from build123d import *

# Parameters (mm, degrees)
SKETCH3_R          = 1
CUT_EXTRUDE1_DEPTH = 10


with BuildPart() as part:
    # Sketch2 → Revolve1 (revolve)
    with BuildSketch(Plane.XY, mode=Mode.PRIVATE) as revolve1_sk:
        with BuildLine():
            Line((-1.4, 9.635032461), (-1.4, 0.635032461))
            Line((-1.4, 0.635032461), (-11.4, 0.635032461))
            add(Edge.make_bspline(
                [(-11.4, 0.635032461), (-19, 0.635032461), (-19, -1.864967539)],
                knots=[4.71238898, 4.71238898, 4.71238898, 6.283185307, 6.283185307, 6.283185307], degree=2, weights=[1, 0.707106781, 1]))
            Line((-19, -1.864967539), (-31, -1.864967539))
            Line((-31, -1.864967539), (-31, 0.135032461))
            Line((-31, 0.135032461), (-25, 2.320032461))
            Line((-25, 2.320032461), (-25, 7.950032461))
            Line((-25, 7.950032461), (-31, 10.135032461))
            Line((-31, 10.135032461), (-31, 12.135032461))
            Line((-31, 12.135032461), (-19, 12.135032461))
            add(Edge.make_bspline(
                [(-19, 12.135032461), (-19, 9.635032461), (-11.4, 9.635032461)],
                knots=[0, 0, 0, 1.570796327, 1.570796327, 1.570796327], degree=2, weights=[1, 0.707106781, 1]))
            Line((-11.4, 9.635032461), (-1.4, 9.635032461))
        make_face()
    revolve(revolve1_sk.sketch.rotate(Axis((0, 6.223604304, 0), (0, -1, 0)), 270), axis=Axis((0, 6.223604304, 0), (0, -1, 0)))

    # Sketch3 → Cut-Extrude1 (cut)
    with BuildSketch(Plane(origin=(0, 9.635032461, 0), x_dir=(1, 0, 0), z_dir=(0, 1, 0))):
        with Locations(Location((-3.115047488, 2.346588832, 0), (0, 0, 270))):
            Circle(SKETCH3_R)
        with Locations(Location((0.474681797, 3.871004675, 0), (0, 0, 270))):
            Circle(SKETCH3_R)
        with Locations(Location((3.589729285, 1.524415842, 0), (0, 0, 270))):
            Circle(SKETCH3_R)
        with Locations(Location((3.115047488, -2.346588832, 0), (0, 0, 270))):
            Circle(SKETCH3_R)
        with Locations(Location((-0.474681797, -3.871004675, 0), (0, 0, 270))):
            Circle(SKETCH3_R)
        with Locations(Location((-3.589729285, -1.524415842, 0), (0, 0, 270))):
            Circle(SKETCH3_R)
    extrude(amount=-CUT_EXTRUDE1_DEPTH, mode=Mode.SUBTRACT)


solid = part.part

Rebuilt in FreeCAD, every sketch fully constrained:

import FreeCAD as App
import Part
import Sketcher
Q = App.Units.Quantity

doc = App.newDocument("Part")
params = doc.addObject("Spreadsheet::Sheet", "Params")
for row, (alias, value) in enumerate([
    ("sketch1_width", "10 mm"),
    ("sketch1_width2", "12 mm"),
    ("sketch1_height", "2 mm"),
    ("sketch1_height2", "5.63 mm"),
    ("revolution_angle", "360 deg"),
    ("sketch2_diameter", "2 mm"),
    ("pocket1_length", "10 mm"),
], start=1):
    params.set(f"A{row}", alias)
    params.set(f"B{row}", "=" + value)
    params.setAlias(f"B{row}", alias)

body = doc.addObject("PartDesign::Body", "Body")

# Sketch on XY plane
sketch1 = doc.addObject("Sketcher::SketchObject", "Sketch")
body.addObject(sketch1)
sketch1.AttachmentSupport = (doc.XY_Plane, [""])
sketch1.MapMode = "FlatFace"
sketch1.addGeometry([
    Part.LineSegment(App.Vector(-1.4, 0.635032, 0), App.Vector(-1.4, 9.635032, 0)),  # 0
    Part.LineSegment(App.Vector(-1.4, 9.635032, 0), App.Vector(-11.4, 9.635032, 0)),  # 1
    Part.BSplineCurve([App.Vector(-19, 12.135032, 0), App.Vector(-19, 9.635032, 0), App.Vector(-11.4, 9.635032, 0)], [3, 3], [0, 1.570796327], False, 2, [1, 0.707106781, 1], False),  # 2
    Part.LineSegment(App.Vector(-19, 12.135032, 0), App.Vector(-31, 12.135032, 0)),  # 3
    Part.LineSegment(App.Vector(-31, 12.135032, 0), App.Vector(-31, 10.135032, 0)),  # 4
    Part.LineSegment(App.Vector(-31, 10.135032, 0), App.Vector(-25, 7.950032, 0)),  # 5
    Part.LineSegment(App.Vector(-25, 7.950032, 0), App.Vector(-25, 2.320032, 0)),  # 6
    Part.LineSegment(App.Vector(-25, 2.320032, 0), App.Vector(-31, 0.135032, 0)),  # 7
    Part.LineSegment(App.Vector(-31, 0.135032, 0), App.Vector(-31, -1.864968, 0)),  # 8
    Part.LineSegment(App.Vector(-31, -1.864968, 0), App.Vector(-19, -1.864968, 0)),  # 9
    Part.BSplineCurve([App.Vector(-11.4, 0.635032, 0), App.Vector(-19, 0.635032, 0), App.Vector(-19, -1.864968, 0)], [3, 3], [4.71238898, 6.283185307], False, 2, [1, 0.707106781, 1], False),  # 10
    Part.LineSegment(App.Vector(-11.4, 0.635032, 0), App.Vector(-1.4, 0.635032, 0)),  # 11
], False)
sketch1.addConstraint([
    Sketcher.Constraint("Block", 2),
    Sketcher.Constraint("Block", 10),
    Sketcher.Constraint("Coincident", 0, 2, 1, 1),
    Sketcher.Constraint("Coincident", 1, 2, 2, 2),
    Sketcher.Constraint("Coincident", 2, 1, 3, 1),
    Sketcher.Constraint("Coincident", 3, 2, 4, 1),
    Sketcher.Constraint("Coincident", 4, 2, 5, 1),
    Sketcher.Constraint("Coincident", 5, 2, 6, 1),
    Sketcher.Constraint("Coincident", 6, 2, 7, 1),
    Sketcher.Constraint("Coincident", 7, 2, 8, 1),
    Sketcher.Constraint("Coincident", 8, 2, 9, 1),
    Sketcher.Constraint("Coincident", 9, 2, 10, 2),
    Sketcher.Constraint("Coincident", 10, 1, 11, 1),
    Sketcher.Constraint("Coincident", 11, 2, 0, 1),
    Sketcher.Constraint("Vertical", 0),
    Sketcher.Constraint("Horizontal", 1),
    Sketcher.Constraint("Horizontal", 3),
    Sketcher.Constraint("Vertical", 4),
    Sketcher.Constraint("Vertical", 6),
    Sketcher.Constraint("Vertical", 8),
    Sketcher.Constraint("Horizontal", 9),
    Sketcher.Constraint("Horizontal", 11),
    Sketcher.Constraint("Vertical", 4, 2, 7, 2),
    Sketcher.Constraint("Equal", 4, 8),
    Sketcher.Constraint("Equal", 5, 7),
    Sketcher.Constraint("DistanceX", 1, 2, 1, 1, Q("10 mm")),
    Sketcher.Constraint("DistanceX", 3, 2, 3, 1, Q("12 mm")),
    Sketcher.Constraint("DistanceY", 4, 2, 4, 1, Q("2 mm")),
    Sketcher.Constraint("DistanceX", 5, 2, -1, 1, Q("25 mm")),
    Sketcher.Constraint("DistanceY", 6, 2, 6, 1, Q("5.63 mm")),
])
sketch1.setExpression("Constraints[25]", "Params.sketch1_width")
sketch1.setExpression("Constraints[26]", "Params.sketch1_width2")
sketch1.setExpression("Constraints[27]", "Params.sketch1_height")
sketch1.setExpression("Constraints[29]", "Params.sketch1_height2")
revolution = doc.addObject("PartDesign::Revolution", "Revolution")
body.addObject(revolution)
revolution.Profile = sketch1
revolution.ReferenceAxis = (sketch1, ["V_Axis"])
revolution.setExpression("Angle", "Params.revolution_angle")

# Sketch on XZ plane
sketch2 = doc.addObject("Sketcher::SketchObject", "Sketch001")
body.addObject(sketch2)
sketch2.AttachmentSupport = (doc.XZ_Plane, [""])
sketch2.MapMode = "FlatFace"
sketch2.AttachmentOffset = App.Placement(App.Vector(0, 0, -9.635032), App.Rotation())
sketch2.addGeometry([
    Part.Circle(App.Vector(-3.115047, -2.346589, 0), App.Vector(0, 0, 1), 1),  # 0
    Part.Circle(App.Vector(0.474682, -3.871005, 0), App.Vector(0, 0, 1), 1),  # 1
    Part.Circle(App.Vector(3.589729, -1.524416, 0), App.Vector(0, 0, 1), 1),  # 2
    Part.Circle(App.Vector(3.115047, 2.346589, 0), App.Vector(0, 0, 1), 1),  # 3
    Part.Circle(App.Vector(-0.474682, 3.871005, 0), App.Vector(0, 0, 1), 1),  # 4
    Part.Circle(App.Vector(-3.589729, 1.524416, 0), App.Vector(0, 0, 1), 1),  # 5
], False)
sketch2.addConstraint([
    Sketcher.Constraint("Equal", 0, 1),
    Sketcher.Constraint("Equal", 1, 2),
    Sketcher.Constraint("Equal", 2, 3),
    Sketcher.Constraint("Equal", 3, 4),
    Sketcher.Constraint("Equal", 4, 5),
    Sketcher.Constraint("Symmetric", 0, 3, 3, 3, -1, 1),
    Sketcher.Constraint("Symmetric", 1, 3, 4, 3, -1, 1),
    Sketcher.Constraint("Symmetric", 2, 3, 5, 3, -1, 1),
    Sketcher.Constraint("Diameter", 0, Q("2 mm")),
    Sketcher.Constraint("DistanceY", 0, 3, -1, 1, Q("2.346589 mm")),
    Sketcher.Constraint("DistanceX", -1, 1, 1, 3, Q("0.474682 mm")),
    Sketcher.Constraint("DistanceX", -1, 1, 2, 3, Q("3.589729 mm")),
    Sketcher.Constraint("DistanceX", 0, 3, 1, 3, Q("3.589729 mm")),
    Sketcher.Constraint("DistanceY", 1, 3, 2, 3, Q("2.346589 mm")),
    Sketcher.Constraint("DistanceY", 2, 3, 4, 3, Q("5.395421 mm")),
])
sketch2.setExpression("Constraints[8]", "Params.sketch2_diameter")
pocket1 = doc.addObject("PartDesign::Pocket", "Pocket")
body.addObject(pocket1)
pocket1.Profile = sketch2
pocket1.setExpression("Length", "Params.pocket1_length")
pocket1.Reversed = True

doc.recompute()
